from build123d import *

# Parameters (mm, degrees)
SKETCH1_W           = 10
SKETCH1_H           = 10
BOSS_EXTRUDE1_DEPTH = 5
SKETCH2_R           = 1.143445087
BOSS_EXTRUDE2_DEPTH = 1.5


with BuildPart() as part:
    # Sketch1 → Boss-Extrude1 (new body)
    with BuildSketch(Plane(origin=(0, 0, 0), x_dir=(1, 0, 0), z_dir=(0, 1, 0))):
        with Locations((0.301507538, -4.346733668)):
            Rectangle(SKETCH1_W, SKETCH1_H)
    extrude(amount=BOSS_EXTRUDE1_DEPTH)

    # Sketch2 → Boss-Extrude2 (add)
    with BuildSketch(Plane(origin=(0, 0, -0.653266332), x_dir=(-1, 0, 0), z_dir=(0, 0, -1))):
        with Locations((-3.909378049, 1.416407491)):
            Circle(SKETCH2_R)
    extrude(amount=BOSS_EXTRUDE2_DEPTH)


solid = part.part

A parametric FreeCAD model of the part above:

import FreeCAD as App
import Part
import Sketcher

doc = App.newDocument("Part")
body = doc.addObject("PartDesign::Body", "Body")

# Sketch on XZ plane
sketch1 = body.newObject("Sketcher::SketchObject", "Sketch")
sketch1.AttachmentSupport = (doc.getObject("XZ_Plane"), [""])
sketch1.MapMode = "FlatFace"
sketch1.addGeometry(Part.LineSegment(App.Vector(-4.698492, -0.653266, 0), App.Vector(-4.698492, 9.346734, 0)), False)
sketch1.addGeometry(Part.LineSegment(App.Vector(-4.698492, 9.346734, 0), App.Vector(5.301508, 9.346734, 0)), False)
sketch1.addGeometry(Part.LineSegment(App.Vector(5.301508, 9.346734, 0), App.Vector(5.301508, -0.653266, 0)), False)
sketch1.addGeometry(Part.LineSegment(App.Vector(5.301508, -0.653266, 0), App.Vector(-4.698492, -0.653266, 0)), False)
sketch1.addConstraint(Sketcher.Constraint("Coincident", 0, 2, 1, 1))
sketch1.addConstraint(Sketcher.Constraint("Coincident", 1, 2, 2, 1))
sketch1.addConstraint(Sketcher.Constraint("Coincident", 2, 2, 3, 1))
sketch1.addConstraint(Sketcher.Constraint("Coincident", 3, 2, 0, 1))
sketch1.addConstraint(Sketcher.Constraint("Vertical", 0))
sketch1.addConstraint(Sketcher.Constraint("Horizontal", 1))
sketch1.addConstraint(Sketcher.Constraint("Vertical", 2))
sketch1.addConstraint(Sketcher.Constraint("Horizontal", 3))
sketch1.addConstraint(Sketcher.Constraint("Equal", 3, 0))
sketch1.addConstraint(Sketcher.Constraint("DistanceX", 1, 1, 1, 2, 10.0))
sketch1.addConstraint(Sketcher.Constraint("DistanceX", 0, 2, -1, 1, 4.698492))
sketch1.addConstraint(Sketcher.Constraint("DistanceY", -1, 1, 0, 2, 9.346734))
pad1 = body.newObject("PartDesign::Pad", "Pad")
pad1.Profile = sketch1
pad1.Length = 5
pad1.Reversed = True

# Sketch on XY plane
sketch2 = body.newObject("Sketcher::SketchObject", "Sketch001")
sketch2.AttachmentSupport = (doc.getObject("XY_Plane"), [""])
sketch2.MapMode = "FlatFace"
sketch2.AttachmentOffset = App.Placement(App.Vector(0, 0, -0.653266), App.Rotation())
sketch2.addGeometry(Part.Circle(App.Vector(3.909378, 1.416407, 0), App.Vector(0, 0, 1), 1.143445), False)
sketch2.addConstraint(Sketcher.Constraint("Diameter", 0, 2.28689))
sketch2.addConstraint(Sketcher.Constraint("DistanceX", -1, 1, 0, 3, 3.909378))
sketch2.addConstraint(Sketcher.Constraint("DistanceY", -1, 1, 0, 3, 1.416407))
pad2 = body.newObject("PartDesign::Pad", "Pad001")
pad2.Profile = sketch2
pad2.Length = 1.5
pad2.Reversed = True

doc.recompute()
